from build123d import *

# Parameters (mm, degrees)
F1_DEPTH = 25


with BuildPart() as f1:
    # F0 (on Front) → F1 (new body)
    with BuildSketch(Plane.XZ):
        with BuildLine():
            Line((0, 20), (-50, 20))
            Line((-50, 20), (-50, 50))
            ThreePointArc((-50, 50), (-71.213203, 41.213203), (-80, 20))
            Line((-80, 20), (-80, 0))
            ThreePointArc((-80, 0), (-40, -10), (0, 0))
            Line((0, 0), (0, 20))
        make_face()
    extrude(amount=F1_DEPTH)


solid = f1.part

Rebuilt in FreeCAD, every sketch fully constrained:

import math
import FreeCAD as App
import Part
import Sketcher

doc = App.newDocument("Part")
body = doc.addObject("PartDesign::Body", "Body")

# Sketch on XZ plane
sketch1 = body.newObject("Sketcher::SketchObject", "Sketch")
sketch1.AttachmentSupport = (doc.getObject("XZ_Plane"), [""])
sketch1.MapMode = "FlatFace"
sketch1.addGeometry([
    Part.LineSegment(App.Vector(0, 20, 0), App.Vector(-50, 20, 0)),  # 0
    Part.LineSegment(App.Vector(-50, 20, 0), App.Vector(-50, 50, 0)),  # 1
    Part.ArcOfCircle(Part.Circle(App.Vector(-50, 20, 0), App.Vector(0, 0, 1), 30), math.radians(90), math.radians(180)),  # 2
    Part.LineSegment(App.Vector(-80, 20, 0), App.Vector(-80, 0, 0)),  # 3
    Part.ArcOfCircle(Part.Circle(App.Vector(-40, 75, 0), App.Vector(0, 0, 1), 85), math.radians(-118), math.radians(-62)),  # 4
    Part.LineSegment(App.Vector(0, 0, 0), App.Vector(0, 20, 0)),  # 5
], False)
sketch1.addConstraint([
    Sketcher.Constraint("Coincident", 0, 2, 1, 1),
    Sketcher.Constraint("Coincident", 1, 2, 2, 1),
    Sketcher.Constraint("Tangent", 2, 2, 3, 1),
    Sketcher.Constraint("Coincident", 3, 2, 4, 1),
    Sketcher.Constraint("Coincident", 4, 2, 5, 1),
    Sketcher.Constraint("Coincident", 5, 2, 0, 1),
    Sketcher.Constraint("Horizontal", 0),
    Sketcher.Constraint("Vertical", 1),
    Sketcher.Constraint("Vertical", 3),
    Sketcher.Constraint("Vertical", 5),
    Sketcher.Constraint("Coincident", 4, 2, -1, 1),
    Sketcher.Constraint("Coincident", 0, 2, 2, 3),
    Sketcher.Constraint("PointOnObject", 3, 2, -1),
    Sketcher.Constraint("Radius", 2, 30.000001),
    Sketcher.Constraint("Radius", 4, 85.0),
    Sketcher.Constraint("DistanceX", 0, 2, 0, 1, 50.0),
    Sketcher.Constraint("DistanceY", 3, 2, 3, 1, 20.0),
])
pad1 = body.newObject("PartDesign::Pad", "Pad")
pad1.Profile = sketch1
pad1.Length = 25

doc.recompute()
